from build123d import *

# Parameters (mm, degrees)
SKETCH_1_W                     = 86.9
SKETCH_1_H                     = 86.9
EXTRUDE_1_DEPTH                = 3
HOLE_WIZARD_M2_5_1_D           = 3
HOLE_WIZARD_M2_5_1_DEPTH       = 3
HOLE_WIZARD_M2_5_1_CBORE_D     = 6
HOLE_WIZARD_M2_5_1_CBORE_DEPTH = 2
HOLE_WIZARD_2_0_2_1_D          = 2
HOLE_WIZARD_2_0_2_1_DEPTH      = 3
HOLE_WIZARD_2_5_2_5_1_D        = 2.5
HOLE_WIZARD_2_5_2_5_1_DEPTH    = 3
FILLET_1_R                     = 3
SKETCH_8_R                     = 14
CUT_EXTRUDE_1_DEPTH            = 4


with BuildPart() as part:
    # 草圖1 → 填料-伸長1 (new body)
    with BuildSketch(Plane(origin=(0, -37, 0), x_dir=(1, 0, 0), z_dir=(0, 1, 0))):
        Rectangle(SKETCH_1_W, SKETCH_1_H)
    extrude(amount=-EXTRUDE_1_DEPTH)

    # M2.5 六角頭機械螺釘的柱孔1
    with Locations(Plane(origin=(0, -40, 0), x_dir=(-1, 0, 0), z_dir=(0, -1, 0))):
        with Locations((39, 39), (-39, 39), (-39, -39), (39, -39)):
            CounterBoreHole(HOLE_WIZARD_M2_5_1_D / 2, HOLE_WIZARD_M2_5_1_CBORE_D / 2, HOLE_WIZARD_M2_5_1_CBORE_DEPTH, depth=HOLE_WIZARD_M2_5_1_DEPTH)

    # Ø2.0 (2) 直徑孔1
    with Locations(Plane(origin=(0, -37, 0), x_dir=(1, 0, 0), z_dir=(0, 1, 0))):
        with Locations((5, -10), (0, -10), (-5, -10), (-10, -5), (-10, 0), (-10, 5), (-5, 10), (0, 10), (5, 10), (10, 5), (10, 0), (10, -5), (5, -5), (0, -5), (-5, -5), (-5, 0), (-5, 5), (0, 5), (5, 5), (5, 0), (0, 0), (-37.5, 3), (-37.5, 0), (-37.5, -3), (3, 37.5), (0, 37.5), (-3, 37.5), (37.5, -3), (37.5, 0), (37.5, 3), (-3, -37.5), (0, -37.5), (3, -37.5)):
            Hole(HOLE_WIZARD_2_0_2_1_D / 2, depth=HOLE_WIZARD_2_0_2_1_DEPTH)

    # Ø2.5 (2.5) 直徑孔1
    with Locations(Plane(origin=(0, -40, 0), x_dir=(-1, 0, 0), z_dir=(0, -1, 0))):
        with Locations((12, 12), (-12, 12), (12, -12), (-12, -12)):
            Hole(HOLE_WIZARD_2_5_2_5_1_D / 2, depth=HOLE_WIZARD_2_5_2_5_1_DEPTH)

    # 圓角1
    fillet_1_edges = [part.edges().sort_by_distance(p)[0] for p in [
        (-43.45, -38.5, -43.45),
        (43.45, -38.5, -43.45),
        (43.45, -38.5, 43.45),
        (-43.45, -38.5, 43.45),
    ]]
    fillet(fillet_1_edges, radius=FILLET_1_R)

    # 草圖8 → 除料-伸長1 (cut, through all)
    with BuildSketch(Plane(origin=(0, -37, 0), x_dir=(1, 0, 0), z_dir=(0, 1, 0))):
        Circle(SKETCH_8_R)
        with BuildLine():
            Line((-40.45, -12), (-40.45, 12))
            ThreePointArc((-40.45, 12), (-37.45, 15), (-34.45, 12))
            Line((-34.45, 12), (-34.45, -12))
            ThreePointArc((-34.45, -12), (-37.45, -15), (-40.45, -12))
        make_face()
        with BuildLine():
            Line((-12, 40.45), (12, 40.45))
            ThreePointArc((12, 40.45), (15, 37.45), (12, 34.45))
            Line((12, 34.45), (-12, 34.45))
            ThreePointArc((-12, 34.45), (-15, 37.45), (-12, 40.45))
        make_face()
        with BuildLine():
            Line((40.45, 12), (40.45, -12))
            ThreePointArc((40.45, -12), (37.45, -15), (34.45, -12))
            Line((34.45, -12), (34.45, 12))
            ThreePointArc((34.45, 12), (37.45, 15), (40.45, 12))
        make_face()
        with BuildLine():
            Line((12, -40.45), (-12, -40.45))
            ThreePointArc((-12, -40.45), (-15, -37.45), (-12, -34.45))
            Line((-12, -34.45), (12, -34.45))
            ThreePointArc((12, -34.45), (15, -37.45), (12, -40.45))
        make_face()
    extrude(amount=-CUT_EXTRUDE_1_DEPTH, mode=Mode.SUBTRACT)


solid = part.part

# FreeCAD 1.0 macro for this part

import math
import FreeCAD as App
import Part
import Sketcher
from FreeCAD import Vector


def edges_at(feature, points):
    """Names of the edges that pass closest to the given points."""
    edges = feature.Shape.Edges
    near = lambda p: min(range(len(edges)), key=lambda i: edges[i].distToShape(Part.Vertex(*p))[0])
    return sorted({f"Edge{near(p) + 1}" for p in points})

doc = App.newDocument("Part")
body = doc.addObject("PartDesign::Body", "Body")

sketch1 = doc.addObject("Sketcher::SketchObject", "Sketch")
body.addObject(sketch1)
sketch1.AttachmentSupport = (doc.XZ_Plane, [""])
sketch1.MapMode = "FlatFace"
sketch1.AttachmentOffset = App.Placement(Vector(0, 0, 37), App.Rotation())
sketch1.addGeometry([
    Part.LineSegment(Vector(-43, -43, 0), Vector(-43, 43, 0)),
    Part.LineSegment(Vector(-43, 43, 0), Vector(43, 43, 0)),
    Part.LineSegment(Vector(43, 43, 0), Vector(43, -43, 0)),
    Part.LineSegment(Vector(43, -43, 0), Vector(-43, -43, 0)),
], False)
sketch1.addConstraint([
    Sketcher.Constraint("Coincident", 0, 2, 1, 1),
    Sketcher.Constraint("Coincident", 1, 2, 2, 1),
    Sketcher.Constraint("Coincident", 2, 2, 3, 1),
    Sketcher.Constraint("Coincident", 3, 2, 0, 1),
    Sketcher.Constraint("Vertical", 0),
    Sketcher.Constraint("Horizontal", 1),
    Sketcher.Constraint("Vertical", 2),
    Sketcher.Constraint("Horizontal", 3),
    Sketcher.Constraint("Symmetric", 0, 2, 2, 2, -1, 1),
    Sketcher.Constraint("Equal", 3, 0),
    Sketcher.Constraint("DistanceX", 1, 1, 1, 2, 86.9),
])
pad1 = doc.addObject("PartDesign::Pad", "Pad")
body.addObject(pad1)
pad1.Profile = sketch1
pad1.Length = 3

sketch2 = doc.addObject("Sketcher::SketchObject", "Sketch001")
body.addObject(sketch2)
sketch2.AttachmentSupport = (doc.XZ_Plane, [""])
sketch2.MapMode = "FlatFace"
sketch2.AttachmentOffset = App.Placement(Vector(0, 0, 40), App.Rotation())
sketch2.addGeometry([
    Part.Circle(Vector(-39, -39, 0), Vector(0, 0, 1), 1.5),
    Part.Circle(Vector(39, -39, 0), Vector(0, 0, 1), 1.5),
    Part.Circle(Vector(39, 39, 0), Vector(0, 0, 1), 1.5),
    Part.Circle(Vector(-39, 39, 0), Vector(0, 0, 1), 1.5),
], False)
sketch2.addConstraint([
    Sketcher.Constraint("Equal", 0, 1),
    Sketcher.Constraint("Equal", 1, 2),
    Sketcher.Constraint("Equal", 2, 3),
    Sketcher.Constraint("Symmetric", 0, 3, 2, 3, -1, 1),
    Sketcher.Constraint("Symmetric", 1, 3, 3, 3, -1, 1),
    Sketcher.Constraint("Symmetric", 0, 3, 1, 3, -2),
    Sketcher.Constraint("Diameter", 0, 3.0),
    Sketcher.Constraint("DistanceX", 0, 3, -1, 1, 39.0),
    Sketcher.Constraint("DistanceY", 0, 3, -1, 1, 39.0),
])
doc.recompute()
hole = doc.addObject("PartDesign::Hole", "Hole")
body.addObject(hole)
hole.Profile = sketch2
hole.ThreadType = "None"
hole.Diameter = 3
hole.DepthType = "Dimension"
hole.Depth = 3
hole.DrillPoint = "Flat"
hole.HoleCutType = "Counterbore"
hole.HoleCutDiameter = 6
hole.HoleCutDepth = 2

sketch3 = doc.addObject("Sketcher::SketchObject", "Sketch002")
body.addObject(sketch3)
sketch3.AttachmentSupport = (doc.XZ_Plane, [""])
sketch3.MapMode = "FlatFace"
sketch3.AttachmentOffset = App.Placement(Vector(0, 0, 37), App.Rotation())
sketch3.addGeometry([
    Part.Circle(Vector(5, 10, 0), Vector(0, 0, 1), 1),
    Part.Circle(Vector(0, 10, 0), Vector(0, 0, 1), 1),
    Part.Circle(Vector(-5, 10, 0), Vector(0, 0, 1), 1),
    Part.Circle(Vector(-10, 5, 0), Vector(0, 0, 1), 1),
    Part.Circle(Vector(-10, 0, 0), Vector(0, 0, 1), 1),
    Part.Circle(Vector(-10, -5, 0), Vector(0, 0, 1), 1),
    Part.Circle(Vector(-5, -10, 0), Vector(0, 0, 1), 1),
    Part.Circle(Vector(0, -10, 0), Vector(0, 0, 1), 1),
    Part.Circle(Vector(5, -10, 0), Vector(0, 0, 1), 1),
    Part.Circle(Vector(10, -5, 0), Vector(0, 0, 1), 1),
    Part.Circle(Vector(10, 0, 0), Vector(0, 0, 1), 1),
    Part.Circle(Vector(10, 5, 0), Vector(0, 0, 1), 1),
    Part.Circle(Vector(5, 5, 0), Vector(0, 0, 1), 1),
    Part.Circle(Vector(0, 5, 0), Vector(0, 0, 1), 1),
    Part.Circle(Vector(-5, 5, 0), Vector(0, 0, 1), 1),
    Part.Circle(Vector(-5, 0, 0), Vector(0, 0, 1), 1),
    Part.Circle(Vector(-5, -5, 0), Vector(0, 0, 1), 1),
    Part.Circle(Vector(0, -5, 0), Vector(0, 0, 1), 1),
    Part.Circle(Vector(5, -5, 0), Vector(0, 0, 1), 1),
    Part.Circle(Vector(5, 0, 0), Vector(0, 0, 1), 1),
    Part.Circle(Vector(0, 0, 0), Vector(0, 0, 1), 1),
    Part.Circle(Vector(-37.5, -3, 0), Vector(0, 0, 1), 1),
    Part.Circle(Vector(-37.5, 0, 0), Vector(0, 0, 1), 1),
    Part.Circle(Vector(-37.5, 3, 0), Vector(0, 0, 1), 1),
    Part.Circle(Vector(3, -37.5, 0), Vector(0, 0, 1), 1),
    Part.Circle(Vector(0, -37.5, 0), Vector(0, 0, 1), 1),
    Part.Circle(Vector(-3, -37.5, 0), Vector(0, 0, 1), 1),
    Part.Circle(Vector(37.5, 3, 0), Vector(0, 0, 1), 1),
    Part.Circle(Vector(37.5, 0, 0), Vector(0, 0, 1), 1),
    Part.Circle(Vector(37.5, -3, 0), Vector(0, 0, 1), 1),
    Part.Circle(Vector(-3, 37.5, 0), Vector(0, 0, 1), 1),
    Part.Circle(Vector(0, 37.5, 0), Vector(0, 0, 1), 1),
    Part.Circle(Vector(3, 37.5, 0), Vector(0, 0, 1), 1),
], False)
sketch3.addConstraint([
    Sketcher.Constraint("Coincident", 20, 3, -1, 1),
    Sketcher.Constraint("Equal", 0, 1),
    Sketcher.Constraint("Equal", 1, 2),
    Sketcher.Constraint("Equal", 2, 3),
    Sketcher.Constraint("Equal", 3, 4),
    Sketcher.Constraint("Equal", 4, 5),
    Sketcher.Constraint("Equal", 5, 6),
    Sketcher.Constraint("Equal", 6, 7),
    Sketcher.Constraint("Equal", 7, 8),
    Sketcher.Constraint("Equal", 8, 9),
    Sketcher.Constraint("Equal", 9, 10),
    Sketcher.Constraint("Equal", 10, 11),
    Sketcher.Constraint("Equal", 11, 12),
    Sketcher.Constraint("Equal", 12, 13),
    Sketcher.Constraint("Equal", 13, 14),
    Sketcher.Constraint("Equal", 14, 15),
    Sketcher.Constraint("Equal", 15, 16),
    Sketcher.Constraint("Equal", 16, 17),
    Sketcher.Constraint("Equal", 17, 18),
    Sketcher.Constraint("Equal", 18, 19),
    Sketcher.Constraint("Equal", 19, 20),
    Sketcher.Constraint("Equal", 20, 21),
    Sketcher.Constraint("Equal", 21, 22),
    Sketcher.Constraint("Equal", 22, 23),
    Sketcher.Constraint("Equal", 23, 24),
    Sketcher.Constraint("Equal", 24, 25),
    Sketcher.Constraint("Equal", 25, 26),
    Sketcher.Constraint("Equal", 26, 27),
    Sketcher.Constraint("Equal", 27, 28),
    Sketcher.Constraint("Equal", 28, 29),
    Sketcher.Constraint("Equal", 29, 30),
    Sketcher.Constraint("Equal", 30, 31),
    Sketcher.Constraint("Equal", 31, 32),
    Sketcher.Constraint("Symmetric", 0, 3, 6, 3, -1, 1),
    Sketcher.Constraint("Symmetric", 1, 3, 7, 3, -1, 1),
    Sketcher.Constraint("Symmetric", 2, 3, 8, 3, -1, 1),
    Sketcher.Constraint("Symmetric", 3, 3, 9, 3, -1, 1),
    Sketcher.Constraint("Symmetric", 4, 3, 10, 3, -1, 1),
    Sketcher.Constraint("Symmetric", 5, 3, 11, 3, -1, 1),
    Sketcher.Constraint("Symmetric", 12, 3, 16, 3, -1, 1),
    Sketcher.Constraint("Symmetric", 13, 3, 17, 3, -1, 1),
    Sketcher.Constraint("Symmetric", 14, 3, 18, 3, -1, 1),
    Sketcher.Constraint("Symmetric", 15, 3, 19, 3, -1, 1),
    Sketcher.Constraint("Symmetric", 21, 3, 27, 3, -1, 1),
    Sketcher.Constraint("Symmetric", 22, 3, 28, 3, -1, 1),
    Sketcher.Constraint("Symmetric", 23, 3, 29, 3, -1, 1),
    Sketcher.Constraint("Symmetric", 24, 3, 30, 3, -1, 1),
    Sketcher.Constraint("Symmetric", 25, 3, 31, 3, -1, 1),
    Sketcher.Constraint("Symmetric", 26, 3, 32, 3, -1, 1),
    Sketcher.Constraint("Symmetric", 0, 3, 2, 3, -2),
    Sketcher.Constraint("Symmetric", 5, 3, 9, 3, -2),
    Sketcher.Constraint("Symmetric", 12, 3, 14, 3, -2),
    Sketcher.Constraint("Symmetric", 24, 3, 26, 3, -2),
    Sketcher.Constraint("Symmetric", 23, 3, 27, 3, -2),
    Sketcher.Constraint("PointOnObject", 1, 3, -2),
    Sketcher.Constraint("PointOnObject", 4, 3, -1),
    Sketcher.Constraint("PointOnObject", 13, 3, -2),
    Sketcher.Constraint("PointOnObject", 15, 3, -1),
    Sketcher.Constraint("PointOnObject", 22, 3, -1),
    Sketcher.Constraint("PointOnObject", 25, 3, -2),
    Sketcher.Constraint("Horizontal", 0, 3, 1, 3),
    Sketcher.Constraint("Horizontal", 11, 3, 12, 3),
    Sketcher.Constraint("Horizontal", 12, 3, 13, 3),
    Sketcher.Constraint("Horizontal", 24, 3, 25, 3),
    Sketcher.Constraint("Vertical", 3, 3, 4, 3),
    Sketcher.Constraint("Vertical", 8, 3, 12, 3),
    Sketcher.Constraint("Vertical", 14, 3, 15, 3),
    Sketcher.Constraint("Vertical", 21, 3, 22, 3),
    Sketcher.Constraint("Diameter", 0, 2.0),
    Sketcher.Constraint("DistanceX", -1, 1, 0, 3, 5.0),
    Sketcher.Constraint("DistanceY", -1, 1, 0, 3, 10.0),
    Sketcher.Constraint("DistanceX", 3, 3, -1, 1, 10.0),
    Sketcher.Constraint("DistanceY", -1, 1, 3, 3, 5.0),
    Sketcher.Constraint("DistanceY", 21, 3, -1, 1, 3.0),
    Sketcher.Constraint("DistanceX", -1, 1, 24, 3, 3.0),
    Sketcher.Constraint("DistanceX", 21, 3, -1, 1, 37.5),
    Sketcher.Constraint("DistanceY", 24, 3, -1, 1, 37.5),
])
doc.recompute()
hole2 = doc.addObject("PartDesign::Hole", "Hole001")
body.addObject(hole2)
hole2.Profile = sketch3
hole2.ThreadType = "None"
hole2.Diameter = 2
hole2.DepthType = "Dimension"
hole2.Depth = 3
hole2.DrillPoint = "Flat"
hole2.Reversed = True

sketch4 = doc.addObject("Sketcher::SketchObject", "Sketch003")
body.addObject(sketch4)
sketch4.AttachmentSupport = (doc.XZ_Plane, [""])
sketch4.MapMode = "FlatFace"
sketch4.AttachmentOffset = App.Placement(Vector(0, 0, 40), App.Rotation())
sketch4.addGeometry([
    Part.Circle(Vector(-12, -12, 0), Vector(0, 0, 1), 1.2),
    Part.Circle(Vector(12, -12, 0), Vector(0, 0, 1), 1.2),
    Part.Circle(Vector(-12, 12, 0), Vector(0, 0, 1), 1.2),
    Part.Circle(Vector(12, 12, 0), Vector(0, 0, 1), 1.2),
], False)
sketch4.addConstraint([
    Sketcher.Constraint("Equal", 0, 1),
    Sketcher.Constraint("Equal", 1, 2),
    Sketcher.Constraint("Equal", 2, 3),
    Sketcher.Constraint("Symmetric", 1, 3, 2, 3, -1, 1),
    Sketcher.Constraint("Symmetric", 0, 3, 3, 3, -1, 1),
    Sketcher.Constraint("Symmetric", 0, 3, 1, 3, -2),
    Sketcher.Constraint("Diameter", 0, 2.5),
    Sketcher.Constraint("DistanceX", 0, 3, -1, 1, 12.0),
    Sketcher.Constraint("DistanceY", 0, 3, -1, 1, 12.0),
])
doc.recompute()
hole3 = doc.addObject("PartDesign::Hole", "Hole002")
body.addObject(hole3)
hole3.Profile = sketch4
hole3.ThreadType = "None"
hole3.Diameter = 2.5
hole3.DepthType = "Dimension"
hole3.Depth = 3
hole3.DrillPoint = "Flat"
doc.recompute()

fillet = doc.addObject("PartDesign::Fillet", "Fillet")
body.addObject(fillet)
fillet.Base = (hole3, edges_at(hole3, [
    (-43.45, -38.5, -43.45),
    (43.45, -38.5, -43.45),
    (43.45, -38.5, 43.45),
    (-43.45, -38.5, 43.45),
]))
fillet.Radius = 3

sketch5 = doc.addObject("Sketcher::SketchObject", "Sketch004")
body.addObject(sketch5)
sketch5.AttachmentSupport = (doc.XZ_Plane, [""])
sketch5.MapMode = "FlatFace"
sketch5.AttachmentOffset = App.Placement(Vector(0, 0, 37), App.Rotation())
sketch5.addGeometry([
    Part.Circle(Vector(0, 0, 0), Vector(0, 0, 1), 14),
    Part.LineSegment(Vector(-40.5, -12, 0), Vector(-40.5, 12, 0)),
    Part.ArcOfCircle(Part.Circle(Vector(-37.5, 12, 0), Vector(0, 0, 1), 3), math.radians(0), math.radians(180)),
    Part.LineSegment(Vector(-34.5, 12, 0), Vector(-34.5, -12, 0)),
    Part.ArcOfCircle(Part.Circle(Vector(-37.5, -12, 0), Vector(0, 0, 1), 3), math.radians(180), math.radians(360)),
    Part.LineSegment(Vector(12, -40.5, 0), Vector(-12, -40.5, 0)),
    Part.ArcOfCircle(Part.Circle(Vector(-12, -37.5, 0), Vector(0, 0, 1), 3), math.radians(90), math.radians(270)),
    Part.LineSegment(Vector(-12, -34.5, 0), Vector(12, -34.5, 0)),
    Part.ArcOfCircle(Part.Circle(Vector(12, -37.5, 0), Vector(0, 0, 1), 3), math.radians(-90), math.radians(90)),
    Part.LineSegment(Vector(40.5, 12, 0), Vector(40.5, -12, 0)),
    Part.ArcOfCircle(Part.Circle(Vector(37.5, -12, 0), Vector(0, 0, 1), 3), math.radians(180), math.radians(360)),
    Part.LineSegment(Vector(34.5, -12, 0), Vector(34.5, 12, 0)),
    Part.ArcOfCircle(Part.Circle(Vector(37.5, 12, 0), Vector(0, 0, 1), 3), math.radians(0), math.radians(180)),
    Part.LineSegment(Vector(-12, 40.5, 0), Vector(12, 40.5, 0)),
    Part.ArcOfCircle(Part.Circle(Vector(12, 37.5, 0), Vector(0, 0, 1), 3), math.radians(-90), math.radians(90)),
    Part.LineSegment(Vector(12, 34.5, 0), Vector(-12, 34.5, 0)),
    Part.ArcOfCircle(Part.Circle(Vector(-12, 37.5, 0), Vector(0, 0, 1), 3), math.radians(90), math.radians(270)),
], False)
sketch5.addConstraint([
    Sketcher.Constraint("Tangent", 1, 2, 2, 2),
    Sketcher.Constraint("Tangent", 2, 1, 3, 1),
    Sketcher.Constraint("Tangent", 3, 2, 4, 2),
    Sketcher.Constraint("Tangent", 4, 1, 1, 1),
    Sketcher.Constraint("Tangent", 5, 2, 6, 2),
    Sketcher.Constraint("Tangent", 6, 1, 7, 1),
    Sketcher.Constraint("Tangent", 7, 2, 8, 2),
    Sketcher.Constraint("Tangent", 8, 1, 5, 1),
    Sketcher.Constraint("Tangent", 9, 2, 10, 2),
    Sketcher.Constraint("Tangent", 10, 1, 11, 1),
    Sketcher.Constraint("Tangent", 11, 2, 12, 2),
    Sketcher.Constraint("Tangent", 12, 1, 9, 1),
    Sketcher.Constraint("Tangent", 13, 2, 14, 2),
    Sketcher.Constraint("Tangent", 14, 1, 15, 1),
    Sketcher.Constraint("Tangent", 15, 2, 16, 2),
    Sketcher.Constraint("Tangent", 16, 1, 13, 1),
    Sketcher.Constraint("Vertical", 1),
    Sketcher.Constraint("Vertical", 3),
    Sketcher.Constraint("Horizontal", 5),
    Sketcher.Constraint("Horizontal", 7),
    Sketcher.Constraint("Vertical", 9),
    Sketcher.Constraint("Vertical", 11),
    Sketcher.Constraint("Horizontal", 13),
    Sketcher.Constraint("Horizontal", 15),
    Sketcher.Constraint("Coincident", 0, 3, -1, 1),
    Sketcher.Constraint("Equal", 4, 6),
    Sketcher.Constraint("Equal", 8, 10),
    Sketcher.Constraint("Equal", 12, 14),
    Sketcher.Constraint("Symmetric", 2, 3, 10, 3, -1, 1),
    Sketcher.Constraint("Symmetric", 6, 3, 14, 3, -1, 1),
    Sketcher.Constraint("Horizontal", 4, 3, 10, 3),
    Sketcher.Constraint("Horizontal", 2, 3, 12, 3),
    Sketcher.Constraint("Vertical", 8, 3, 14, 3),
    Sketcher.Constraint("Vertical", 6, 3, 16, 3),
    Sketcher.Constraint("Equal", 15, 1),
    Sketcher.Constraint("Diameter", 0, 28.0),
    Sketcher.Constraint("Radius", 2, 3.0),
    Sketcher.Constraint("DistanceX", 5, 2, 5, 1, 24.0),
    Sketcher.Constraint("DistanceX", 4, 3, 10, 3, 74.9),
    Sketcher.Constraint("DistanceY", 6, 3, -1, 1, 37.45),
])
pocket1 = doc.addObject("PartDesign::Pocket", "Pocket")
body.addObject(pocket1)
pocket1.Profile = sketch5
pocket1.Type = "ThroughAll"
pocket1.Reversed = True

doc.recompute()
